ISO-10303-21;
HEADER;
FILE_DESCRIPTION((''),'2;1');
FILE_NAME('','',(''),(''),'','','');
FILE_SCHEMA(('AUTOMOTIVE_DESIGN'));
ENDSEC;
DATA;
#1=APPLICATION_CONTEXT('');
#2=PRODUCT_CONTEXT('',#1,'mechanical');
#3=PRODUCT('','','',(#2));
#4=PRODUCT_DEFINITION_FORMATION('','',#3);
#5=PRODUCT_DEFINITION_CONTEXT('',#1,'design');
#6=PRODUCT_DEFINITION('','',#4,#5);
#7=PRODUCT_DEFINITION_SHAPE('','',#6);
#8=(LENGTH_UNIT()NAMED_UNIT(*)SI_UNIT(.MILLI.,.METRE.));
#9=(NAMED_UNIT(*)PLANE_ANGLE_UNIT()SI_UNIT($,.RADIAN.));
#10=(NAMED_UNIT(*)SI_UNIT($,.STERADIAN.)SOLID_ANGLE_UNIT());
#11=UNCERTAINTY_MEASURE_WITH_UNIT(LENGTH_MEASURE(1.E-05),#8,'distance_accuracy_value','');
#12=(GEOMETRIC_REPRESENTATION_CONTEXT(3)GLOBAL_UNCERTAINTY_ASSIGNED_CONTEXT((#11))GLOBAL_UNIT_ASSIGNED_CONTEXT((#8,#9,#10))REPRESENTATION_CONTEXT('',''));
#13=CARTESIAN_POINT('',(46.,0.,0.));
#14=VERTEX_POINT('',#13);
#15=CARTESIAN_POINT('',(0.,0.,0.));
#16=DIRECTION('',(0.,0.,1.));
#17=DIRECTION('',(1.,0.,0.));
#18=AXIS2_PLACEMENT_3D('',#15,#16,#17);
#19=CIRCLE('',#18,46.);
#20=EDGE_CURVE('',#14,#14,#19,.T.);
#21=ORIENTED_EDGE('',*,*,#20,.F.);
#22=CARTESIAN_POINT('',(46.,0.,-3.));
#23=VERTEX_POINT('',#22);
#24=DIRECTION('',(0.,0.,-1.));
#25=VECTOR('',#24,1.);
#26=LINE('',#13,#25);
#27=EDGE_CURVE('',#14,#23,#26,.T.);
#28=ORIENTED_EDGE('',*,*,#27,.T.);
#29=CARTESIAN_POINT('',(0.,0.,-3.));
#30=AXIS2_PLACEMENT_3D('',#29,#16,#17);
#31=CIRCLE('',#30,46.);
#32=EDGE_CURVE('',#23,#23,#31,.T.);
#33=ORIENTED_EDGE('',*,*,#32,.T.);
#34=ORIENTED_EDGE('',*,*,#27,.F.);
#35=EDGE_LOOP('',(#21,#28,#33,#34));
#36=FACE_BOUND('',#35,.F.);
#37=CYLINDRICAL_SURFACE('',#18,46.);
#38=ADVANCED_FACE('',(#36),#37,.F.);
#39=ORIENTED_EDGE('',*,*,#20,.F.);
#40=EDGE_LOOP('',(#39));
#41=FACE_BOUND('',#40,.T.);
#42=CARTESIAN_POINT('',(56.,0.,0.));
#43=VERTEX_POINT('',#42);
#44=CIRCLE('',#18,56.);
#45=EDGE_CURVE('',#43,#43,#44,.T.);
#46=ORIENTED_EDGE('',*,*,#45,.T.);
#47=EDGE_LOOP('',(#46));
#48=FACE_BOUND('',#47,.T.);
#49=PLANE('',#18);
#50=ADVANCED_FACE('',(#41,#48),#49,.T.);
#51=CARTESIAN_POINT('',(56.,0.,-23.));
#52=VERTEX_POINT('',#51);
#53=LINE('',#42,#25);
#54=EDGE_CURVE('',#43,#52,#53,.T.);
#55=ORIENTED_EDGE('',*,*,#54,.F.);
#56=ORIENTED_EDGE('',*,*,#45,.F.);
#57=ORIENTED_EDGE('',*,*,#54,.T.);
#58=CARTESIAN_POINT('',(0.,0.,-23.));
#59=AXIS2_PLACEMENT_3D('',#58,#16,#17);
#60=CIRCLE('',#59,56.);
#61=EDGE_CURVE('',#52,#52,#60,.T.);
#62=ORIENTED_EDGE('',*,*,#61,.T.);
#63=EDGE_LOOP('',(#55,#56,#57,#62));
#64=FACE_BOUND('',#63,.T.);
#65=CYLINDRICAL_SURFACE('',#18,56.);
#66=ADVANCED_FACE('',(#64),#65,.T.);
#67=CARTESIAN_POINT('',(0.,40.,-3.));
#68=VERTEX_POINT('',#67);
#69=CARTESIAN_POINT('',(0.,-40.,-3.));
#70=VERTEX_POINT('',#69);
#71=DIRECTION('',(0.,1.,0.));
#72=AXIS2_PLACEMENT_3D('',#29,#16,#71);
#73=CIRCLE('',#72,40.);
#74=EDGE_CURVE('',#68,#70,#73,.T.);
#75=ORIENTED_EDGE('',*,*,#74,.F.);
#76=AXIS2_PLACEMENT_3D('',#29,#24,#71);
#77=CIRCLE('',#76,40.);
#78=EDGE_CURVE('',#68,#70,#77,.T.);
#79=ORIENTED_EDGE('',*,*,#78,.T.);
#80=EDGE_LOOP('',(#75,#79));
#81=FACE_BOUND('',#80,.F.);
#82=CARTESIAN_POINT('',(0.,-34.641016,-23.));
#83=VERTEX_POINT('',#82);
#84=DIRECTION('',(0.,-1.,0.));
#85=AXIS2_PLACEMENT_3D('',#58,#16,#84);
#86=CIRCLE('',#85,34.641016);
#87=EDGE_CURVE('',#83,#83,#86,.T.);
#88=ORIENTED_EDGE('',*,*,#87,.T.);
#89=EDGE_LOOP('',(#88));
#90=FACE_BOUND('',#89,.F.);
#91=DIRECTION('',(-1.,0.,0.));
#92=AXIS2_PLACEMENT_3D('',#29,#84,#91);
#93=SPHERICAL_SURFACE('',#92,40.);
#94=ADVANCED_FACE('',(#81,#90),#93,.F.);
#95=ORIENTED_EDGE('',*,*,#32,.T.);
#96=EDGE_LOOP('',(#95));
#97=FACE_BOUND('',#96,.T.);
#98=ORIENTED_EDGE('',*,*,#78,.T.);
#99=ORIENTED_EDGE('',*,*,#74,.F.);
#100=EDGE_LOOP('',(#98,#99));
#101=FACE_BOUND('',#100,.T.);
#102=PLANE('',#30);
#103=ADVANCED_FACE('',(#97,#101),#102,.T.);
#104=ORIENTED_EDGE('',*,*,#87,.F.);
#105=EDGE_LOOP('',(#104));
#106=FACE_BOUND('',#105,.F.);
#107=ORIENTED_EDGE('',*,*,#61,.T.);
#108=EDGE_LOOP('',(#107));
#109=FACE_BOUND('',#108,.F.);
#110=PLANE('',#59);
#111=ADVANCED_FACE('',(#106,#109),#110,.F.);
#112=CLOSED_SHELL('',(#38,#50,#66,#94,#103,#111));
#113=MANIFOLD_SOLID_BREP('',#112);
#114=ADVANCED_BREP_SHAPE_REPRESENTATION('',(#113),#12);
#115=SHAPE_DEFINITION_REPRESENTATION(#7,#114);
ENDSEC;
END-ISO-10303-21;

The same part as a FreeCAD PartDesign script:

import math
import FreeCAD as App
import Part
import Sketcher

V = App.Vector
Q = App.Units.Quantity

doc = App.newDocument("Part")
body = doc.addObject("PartDesign::Body", "Body")

# Sketch on XY plane
sketch1 = body.newObject("Sketcher::SketchObject", "Sketch")
sketch1.AttachmentSupport = (doc.getObject("XY_Plane"), [""])
sketch1.MapMode = "FlatFace"
sketch1.addGeometry(Part.Circle(V(0, 0, 0), V(0, 0, 1), 56), False)
sketch1.addConstraint([
    Sketcher.Constraint("Coincident", 0, 3, -1, 1),
    Sketcher.Constraint("Diameter", 0, Q("112 mm")),
])
pad1 = body.newObject("PartDesign::Pad", "Pad")
pad1.Profile = sketch1
pad1.Length = 23
pad1.Reversed = True

# Sketch on XY plane
sketch2 = body.newObject("Sketcher::SketchObject", "Sketch001")
sketch2.AttachmentSupport = (doc.getObject("XY_Plane"), [""])
sketch2.MapMode = "FlatFace"
sketch2.addGeometry(Part.Circle(V(0, 0, 0), V(0, 0, 1), 46), False)
sketch2.addConstraint([
    Sketcher.Constraint("Coincident", 0, 3, -1, 1),
    Sketcher.Constraint("Diameter", 0, Q("92 mm")),
])
pocket1 = body.newObject("PartDesign::Pocket", "Pocket")
pocket1.Profile = sketch2
pocket1.Length = 3

# Sketch on XY plane
sketch3 = body.newObject("Sketcher::SketchObject", "Sketch002")
sketch3.AttachmentSupport = (doc.getObject("XY_Plane"), [""])
sketch3.MapMode = "FlatFace"
sketch3.AttachmentOffset = App.Placement(V(0, 0, -3), App.Rotation())
sketch3.addGeometry([
    Part.LineSegment(V(0, -40, 0), V(0, 40, 0)),
    Part.ArcOfCircle(Part.Circle(V(0, 0, 0), V(0, 0, 1), 40), math.radians(90), math.radians(270)),
], False)
sketch3.addConstraint([
    Sketcher.Constraint("Coincident", 0, 1, 1, 2),
    Sketcher.Constraint("Coincident", 1, 1, 0, 2),
    Sketcher.Constraint("Vertical", 0),
    Sketcher.Constraint("Coincident", 1, 3, -1, 1),
    Sketcher.Constraint("PointOnObject", 0, 1, -2),
    Sketcher.Constraint("Radius", 1, Q("40 mm")),
])
groove = body.newObject("PartDesign::Groove", "Groove")
groove.Profile = sketch3
groove.ReferenceAxis = (sketch3, ["V_Axis"])
groove.Angle = 180
groove.Reversed = True

doc.recompute()
